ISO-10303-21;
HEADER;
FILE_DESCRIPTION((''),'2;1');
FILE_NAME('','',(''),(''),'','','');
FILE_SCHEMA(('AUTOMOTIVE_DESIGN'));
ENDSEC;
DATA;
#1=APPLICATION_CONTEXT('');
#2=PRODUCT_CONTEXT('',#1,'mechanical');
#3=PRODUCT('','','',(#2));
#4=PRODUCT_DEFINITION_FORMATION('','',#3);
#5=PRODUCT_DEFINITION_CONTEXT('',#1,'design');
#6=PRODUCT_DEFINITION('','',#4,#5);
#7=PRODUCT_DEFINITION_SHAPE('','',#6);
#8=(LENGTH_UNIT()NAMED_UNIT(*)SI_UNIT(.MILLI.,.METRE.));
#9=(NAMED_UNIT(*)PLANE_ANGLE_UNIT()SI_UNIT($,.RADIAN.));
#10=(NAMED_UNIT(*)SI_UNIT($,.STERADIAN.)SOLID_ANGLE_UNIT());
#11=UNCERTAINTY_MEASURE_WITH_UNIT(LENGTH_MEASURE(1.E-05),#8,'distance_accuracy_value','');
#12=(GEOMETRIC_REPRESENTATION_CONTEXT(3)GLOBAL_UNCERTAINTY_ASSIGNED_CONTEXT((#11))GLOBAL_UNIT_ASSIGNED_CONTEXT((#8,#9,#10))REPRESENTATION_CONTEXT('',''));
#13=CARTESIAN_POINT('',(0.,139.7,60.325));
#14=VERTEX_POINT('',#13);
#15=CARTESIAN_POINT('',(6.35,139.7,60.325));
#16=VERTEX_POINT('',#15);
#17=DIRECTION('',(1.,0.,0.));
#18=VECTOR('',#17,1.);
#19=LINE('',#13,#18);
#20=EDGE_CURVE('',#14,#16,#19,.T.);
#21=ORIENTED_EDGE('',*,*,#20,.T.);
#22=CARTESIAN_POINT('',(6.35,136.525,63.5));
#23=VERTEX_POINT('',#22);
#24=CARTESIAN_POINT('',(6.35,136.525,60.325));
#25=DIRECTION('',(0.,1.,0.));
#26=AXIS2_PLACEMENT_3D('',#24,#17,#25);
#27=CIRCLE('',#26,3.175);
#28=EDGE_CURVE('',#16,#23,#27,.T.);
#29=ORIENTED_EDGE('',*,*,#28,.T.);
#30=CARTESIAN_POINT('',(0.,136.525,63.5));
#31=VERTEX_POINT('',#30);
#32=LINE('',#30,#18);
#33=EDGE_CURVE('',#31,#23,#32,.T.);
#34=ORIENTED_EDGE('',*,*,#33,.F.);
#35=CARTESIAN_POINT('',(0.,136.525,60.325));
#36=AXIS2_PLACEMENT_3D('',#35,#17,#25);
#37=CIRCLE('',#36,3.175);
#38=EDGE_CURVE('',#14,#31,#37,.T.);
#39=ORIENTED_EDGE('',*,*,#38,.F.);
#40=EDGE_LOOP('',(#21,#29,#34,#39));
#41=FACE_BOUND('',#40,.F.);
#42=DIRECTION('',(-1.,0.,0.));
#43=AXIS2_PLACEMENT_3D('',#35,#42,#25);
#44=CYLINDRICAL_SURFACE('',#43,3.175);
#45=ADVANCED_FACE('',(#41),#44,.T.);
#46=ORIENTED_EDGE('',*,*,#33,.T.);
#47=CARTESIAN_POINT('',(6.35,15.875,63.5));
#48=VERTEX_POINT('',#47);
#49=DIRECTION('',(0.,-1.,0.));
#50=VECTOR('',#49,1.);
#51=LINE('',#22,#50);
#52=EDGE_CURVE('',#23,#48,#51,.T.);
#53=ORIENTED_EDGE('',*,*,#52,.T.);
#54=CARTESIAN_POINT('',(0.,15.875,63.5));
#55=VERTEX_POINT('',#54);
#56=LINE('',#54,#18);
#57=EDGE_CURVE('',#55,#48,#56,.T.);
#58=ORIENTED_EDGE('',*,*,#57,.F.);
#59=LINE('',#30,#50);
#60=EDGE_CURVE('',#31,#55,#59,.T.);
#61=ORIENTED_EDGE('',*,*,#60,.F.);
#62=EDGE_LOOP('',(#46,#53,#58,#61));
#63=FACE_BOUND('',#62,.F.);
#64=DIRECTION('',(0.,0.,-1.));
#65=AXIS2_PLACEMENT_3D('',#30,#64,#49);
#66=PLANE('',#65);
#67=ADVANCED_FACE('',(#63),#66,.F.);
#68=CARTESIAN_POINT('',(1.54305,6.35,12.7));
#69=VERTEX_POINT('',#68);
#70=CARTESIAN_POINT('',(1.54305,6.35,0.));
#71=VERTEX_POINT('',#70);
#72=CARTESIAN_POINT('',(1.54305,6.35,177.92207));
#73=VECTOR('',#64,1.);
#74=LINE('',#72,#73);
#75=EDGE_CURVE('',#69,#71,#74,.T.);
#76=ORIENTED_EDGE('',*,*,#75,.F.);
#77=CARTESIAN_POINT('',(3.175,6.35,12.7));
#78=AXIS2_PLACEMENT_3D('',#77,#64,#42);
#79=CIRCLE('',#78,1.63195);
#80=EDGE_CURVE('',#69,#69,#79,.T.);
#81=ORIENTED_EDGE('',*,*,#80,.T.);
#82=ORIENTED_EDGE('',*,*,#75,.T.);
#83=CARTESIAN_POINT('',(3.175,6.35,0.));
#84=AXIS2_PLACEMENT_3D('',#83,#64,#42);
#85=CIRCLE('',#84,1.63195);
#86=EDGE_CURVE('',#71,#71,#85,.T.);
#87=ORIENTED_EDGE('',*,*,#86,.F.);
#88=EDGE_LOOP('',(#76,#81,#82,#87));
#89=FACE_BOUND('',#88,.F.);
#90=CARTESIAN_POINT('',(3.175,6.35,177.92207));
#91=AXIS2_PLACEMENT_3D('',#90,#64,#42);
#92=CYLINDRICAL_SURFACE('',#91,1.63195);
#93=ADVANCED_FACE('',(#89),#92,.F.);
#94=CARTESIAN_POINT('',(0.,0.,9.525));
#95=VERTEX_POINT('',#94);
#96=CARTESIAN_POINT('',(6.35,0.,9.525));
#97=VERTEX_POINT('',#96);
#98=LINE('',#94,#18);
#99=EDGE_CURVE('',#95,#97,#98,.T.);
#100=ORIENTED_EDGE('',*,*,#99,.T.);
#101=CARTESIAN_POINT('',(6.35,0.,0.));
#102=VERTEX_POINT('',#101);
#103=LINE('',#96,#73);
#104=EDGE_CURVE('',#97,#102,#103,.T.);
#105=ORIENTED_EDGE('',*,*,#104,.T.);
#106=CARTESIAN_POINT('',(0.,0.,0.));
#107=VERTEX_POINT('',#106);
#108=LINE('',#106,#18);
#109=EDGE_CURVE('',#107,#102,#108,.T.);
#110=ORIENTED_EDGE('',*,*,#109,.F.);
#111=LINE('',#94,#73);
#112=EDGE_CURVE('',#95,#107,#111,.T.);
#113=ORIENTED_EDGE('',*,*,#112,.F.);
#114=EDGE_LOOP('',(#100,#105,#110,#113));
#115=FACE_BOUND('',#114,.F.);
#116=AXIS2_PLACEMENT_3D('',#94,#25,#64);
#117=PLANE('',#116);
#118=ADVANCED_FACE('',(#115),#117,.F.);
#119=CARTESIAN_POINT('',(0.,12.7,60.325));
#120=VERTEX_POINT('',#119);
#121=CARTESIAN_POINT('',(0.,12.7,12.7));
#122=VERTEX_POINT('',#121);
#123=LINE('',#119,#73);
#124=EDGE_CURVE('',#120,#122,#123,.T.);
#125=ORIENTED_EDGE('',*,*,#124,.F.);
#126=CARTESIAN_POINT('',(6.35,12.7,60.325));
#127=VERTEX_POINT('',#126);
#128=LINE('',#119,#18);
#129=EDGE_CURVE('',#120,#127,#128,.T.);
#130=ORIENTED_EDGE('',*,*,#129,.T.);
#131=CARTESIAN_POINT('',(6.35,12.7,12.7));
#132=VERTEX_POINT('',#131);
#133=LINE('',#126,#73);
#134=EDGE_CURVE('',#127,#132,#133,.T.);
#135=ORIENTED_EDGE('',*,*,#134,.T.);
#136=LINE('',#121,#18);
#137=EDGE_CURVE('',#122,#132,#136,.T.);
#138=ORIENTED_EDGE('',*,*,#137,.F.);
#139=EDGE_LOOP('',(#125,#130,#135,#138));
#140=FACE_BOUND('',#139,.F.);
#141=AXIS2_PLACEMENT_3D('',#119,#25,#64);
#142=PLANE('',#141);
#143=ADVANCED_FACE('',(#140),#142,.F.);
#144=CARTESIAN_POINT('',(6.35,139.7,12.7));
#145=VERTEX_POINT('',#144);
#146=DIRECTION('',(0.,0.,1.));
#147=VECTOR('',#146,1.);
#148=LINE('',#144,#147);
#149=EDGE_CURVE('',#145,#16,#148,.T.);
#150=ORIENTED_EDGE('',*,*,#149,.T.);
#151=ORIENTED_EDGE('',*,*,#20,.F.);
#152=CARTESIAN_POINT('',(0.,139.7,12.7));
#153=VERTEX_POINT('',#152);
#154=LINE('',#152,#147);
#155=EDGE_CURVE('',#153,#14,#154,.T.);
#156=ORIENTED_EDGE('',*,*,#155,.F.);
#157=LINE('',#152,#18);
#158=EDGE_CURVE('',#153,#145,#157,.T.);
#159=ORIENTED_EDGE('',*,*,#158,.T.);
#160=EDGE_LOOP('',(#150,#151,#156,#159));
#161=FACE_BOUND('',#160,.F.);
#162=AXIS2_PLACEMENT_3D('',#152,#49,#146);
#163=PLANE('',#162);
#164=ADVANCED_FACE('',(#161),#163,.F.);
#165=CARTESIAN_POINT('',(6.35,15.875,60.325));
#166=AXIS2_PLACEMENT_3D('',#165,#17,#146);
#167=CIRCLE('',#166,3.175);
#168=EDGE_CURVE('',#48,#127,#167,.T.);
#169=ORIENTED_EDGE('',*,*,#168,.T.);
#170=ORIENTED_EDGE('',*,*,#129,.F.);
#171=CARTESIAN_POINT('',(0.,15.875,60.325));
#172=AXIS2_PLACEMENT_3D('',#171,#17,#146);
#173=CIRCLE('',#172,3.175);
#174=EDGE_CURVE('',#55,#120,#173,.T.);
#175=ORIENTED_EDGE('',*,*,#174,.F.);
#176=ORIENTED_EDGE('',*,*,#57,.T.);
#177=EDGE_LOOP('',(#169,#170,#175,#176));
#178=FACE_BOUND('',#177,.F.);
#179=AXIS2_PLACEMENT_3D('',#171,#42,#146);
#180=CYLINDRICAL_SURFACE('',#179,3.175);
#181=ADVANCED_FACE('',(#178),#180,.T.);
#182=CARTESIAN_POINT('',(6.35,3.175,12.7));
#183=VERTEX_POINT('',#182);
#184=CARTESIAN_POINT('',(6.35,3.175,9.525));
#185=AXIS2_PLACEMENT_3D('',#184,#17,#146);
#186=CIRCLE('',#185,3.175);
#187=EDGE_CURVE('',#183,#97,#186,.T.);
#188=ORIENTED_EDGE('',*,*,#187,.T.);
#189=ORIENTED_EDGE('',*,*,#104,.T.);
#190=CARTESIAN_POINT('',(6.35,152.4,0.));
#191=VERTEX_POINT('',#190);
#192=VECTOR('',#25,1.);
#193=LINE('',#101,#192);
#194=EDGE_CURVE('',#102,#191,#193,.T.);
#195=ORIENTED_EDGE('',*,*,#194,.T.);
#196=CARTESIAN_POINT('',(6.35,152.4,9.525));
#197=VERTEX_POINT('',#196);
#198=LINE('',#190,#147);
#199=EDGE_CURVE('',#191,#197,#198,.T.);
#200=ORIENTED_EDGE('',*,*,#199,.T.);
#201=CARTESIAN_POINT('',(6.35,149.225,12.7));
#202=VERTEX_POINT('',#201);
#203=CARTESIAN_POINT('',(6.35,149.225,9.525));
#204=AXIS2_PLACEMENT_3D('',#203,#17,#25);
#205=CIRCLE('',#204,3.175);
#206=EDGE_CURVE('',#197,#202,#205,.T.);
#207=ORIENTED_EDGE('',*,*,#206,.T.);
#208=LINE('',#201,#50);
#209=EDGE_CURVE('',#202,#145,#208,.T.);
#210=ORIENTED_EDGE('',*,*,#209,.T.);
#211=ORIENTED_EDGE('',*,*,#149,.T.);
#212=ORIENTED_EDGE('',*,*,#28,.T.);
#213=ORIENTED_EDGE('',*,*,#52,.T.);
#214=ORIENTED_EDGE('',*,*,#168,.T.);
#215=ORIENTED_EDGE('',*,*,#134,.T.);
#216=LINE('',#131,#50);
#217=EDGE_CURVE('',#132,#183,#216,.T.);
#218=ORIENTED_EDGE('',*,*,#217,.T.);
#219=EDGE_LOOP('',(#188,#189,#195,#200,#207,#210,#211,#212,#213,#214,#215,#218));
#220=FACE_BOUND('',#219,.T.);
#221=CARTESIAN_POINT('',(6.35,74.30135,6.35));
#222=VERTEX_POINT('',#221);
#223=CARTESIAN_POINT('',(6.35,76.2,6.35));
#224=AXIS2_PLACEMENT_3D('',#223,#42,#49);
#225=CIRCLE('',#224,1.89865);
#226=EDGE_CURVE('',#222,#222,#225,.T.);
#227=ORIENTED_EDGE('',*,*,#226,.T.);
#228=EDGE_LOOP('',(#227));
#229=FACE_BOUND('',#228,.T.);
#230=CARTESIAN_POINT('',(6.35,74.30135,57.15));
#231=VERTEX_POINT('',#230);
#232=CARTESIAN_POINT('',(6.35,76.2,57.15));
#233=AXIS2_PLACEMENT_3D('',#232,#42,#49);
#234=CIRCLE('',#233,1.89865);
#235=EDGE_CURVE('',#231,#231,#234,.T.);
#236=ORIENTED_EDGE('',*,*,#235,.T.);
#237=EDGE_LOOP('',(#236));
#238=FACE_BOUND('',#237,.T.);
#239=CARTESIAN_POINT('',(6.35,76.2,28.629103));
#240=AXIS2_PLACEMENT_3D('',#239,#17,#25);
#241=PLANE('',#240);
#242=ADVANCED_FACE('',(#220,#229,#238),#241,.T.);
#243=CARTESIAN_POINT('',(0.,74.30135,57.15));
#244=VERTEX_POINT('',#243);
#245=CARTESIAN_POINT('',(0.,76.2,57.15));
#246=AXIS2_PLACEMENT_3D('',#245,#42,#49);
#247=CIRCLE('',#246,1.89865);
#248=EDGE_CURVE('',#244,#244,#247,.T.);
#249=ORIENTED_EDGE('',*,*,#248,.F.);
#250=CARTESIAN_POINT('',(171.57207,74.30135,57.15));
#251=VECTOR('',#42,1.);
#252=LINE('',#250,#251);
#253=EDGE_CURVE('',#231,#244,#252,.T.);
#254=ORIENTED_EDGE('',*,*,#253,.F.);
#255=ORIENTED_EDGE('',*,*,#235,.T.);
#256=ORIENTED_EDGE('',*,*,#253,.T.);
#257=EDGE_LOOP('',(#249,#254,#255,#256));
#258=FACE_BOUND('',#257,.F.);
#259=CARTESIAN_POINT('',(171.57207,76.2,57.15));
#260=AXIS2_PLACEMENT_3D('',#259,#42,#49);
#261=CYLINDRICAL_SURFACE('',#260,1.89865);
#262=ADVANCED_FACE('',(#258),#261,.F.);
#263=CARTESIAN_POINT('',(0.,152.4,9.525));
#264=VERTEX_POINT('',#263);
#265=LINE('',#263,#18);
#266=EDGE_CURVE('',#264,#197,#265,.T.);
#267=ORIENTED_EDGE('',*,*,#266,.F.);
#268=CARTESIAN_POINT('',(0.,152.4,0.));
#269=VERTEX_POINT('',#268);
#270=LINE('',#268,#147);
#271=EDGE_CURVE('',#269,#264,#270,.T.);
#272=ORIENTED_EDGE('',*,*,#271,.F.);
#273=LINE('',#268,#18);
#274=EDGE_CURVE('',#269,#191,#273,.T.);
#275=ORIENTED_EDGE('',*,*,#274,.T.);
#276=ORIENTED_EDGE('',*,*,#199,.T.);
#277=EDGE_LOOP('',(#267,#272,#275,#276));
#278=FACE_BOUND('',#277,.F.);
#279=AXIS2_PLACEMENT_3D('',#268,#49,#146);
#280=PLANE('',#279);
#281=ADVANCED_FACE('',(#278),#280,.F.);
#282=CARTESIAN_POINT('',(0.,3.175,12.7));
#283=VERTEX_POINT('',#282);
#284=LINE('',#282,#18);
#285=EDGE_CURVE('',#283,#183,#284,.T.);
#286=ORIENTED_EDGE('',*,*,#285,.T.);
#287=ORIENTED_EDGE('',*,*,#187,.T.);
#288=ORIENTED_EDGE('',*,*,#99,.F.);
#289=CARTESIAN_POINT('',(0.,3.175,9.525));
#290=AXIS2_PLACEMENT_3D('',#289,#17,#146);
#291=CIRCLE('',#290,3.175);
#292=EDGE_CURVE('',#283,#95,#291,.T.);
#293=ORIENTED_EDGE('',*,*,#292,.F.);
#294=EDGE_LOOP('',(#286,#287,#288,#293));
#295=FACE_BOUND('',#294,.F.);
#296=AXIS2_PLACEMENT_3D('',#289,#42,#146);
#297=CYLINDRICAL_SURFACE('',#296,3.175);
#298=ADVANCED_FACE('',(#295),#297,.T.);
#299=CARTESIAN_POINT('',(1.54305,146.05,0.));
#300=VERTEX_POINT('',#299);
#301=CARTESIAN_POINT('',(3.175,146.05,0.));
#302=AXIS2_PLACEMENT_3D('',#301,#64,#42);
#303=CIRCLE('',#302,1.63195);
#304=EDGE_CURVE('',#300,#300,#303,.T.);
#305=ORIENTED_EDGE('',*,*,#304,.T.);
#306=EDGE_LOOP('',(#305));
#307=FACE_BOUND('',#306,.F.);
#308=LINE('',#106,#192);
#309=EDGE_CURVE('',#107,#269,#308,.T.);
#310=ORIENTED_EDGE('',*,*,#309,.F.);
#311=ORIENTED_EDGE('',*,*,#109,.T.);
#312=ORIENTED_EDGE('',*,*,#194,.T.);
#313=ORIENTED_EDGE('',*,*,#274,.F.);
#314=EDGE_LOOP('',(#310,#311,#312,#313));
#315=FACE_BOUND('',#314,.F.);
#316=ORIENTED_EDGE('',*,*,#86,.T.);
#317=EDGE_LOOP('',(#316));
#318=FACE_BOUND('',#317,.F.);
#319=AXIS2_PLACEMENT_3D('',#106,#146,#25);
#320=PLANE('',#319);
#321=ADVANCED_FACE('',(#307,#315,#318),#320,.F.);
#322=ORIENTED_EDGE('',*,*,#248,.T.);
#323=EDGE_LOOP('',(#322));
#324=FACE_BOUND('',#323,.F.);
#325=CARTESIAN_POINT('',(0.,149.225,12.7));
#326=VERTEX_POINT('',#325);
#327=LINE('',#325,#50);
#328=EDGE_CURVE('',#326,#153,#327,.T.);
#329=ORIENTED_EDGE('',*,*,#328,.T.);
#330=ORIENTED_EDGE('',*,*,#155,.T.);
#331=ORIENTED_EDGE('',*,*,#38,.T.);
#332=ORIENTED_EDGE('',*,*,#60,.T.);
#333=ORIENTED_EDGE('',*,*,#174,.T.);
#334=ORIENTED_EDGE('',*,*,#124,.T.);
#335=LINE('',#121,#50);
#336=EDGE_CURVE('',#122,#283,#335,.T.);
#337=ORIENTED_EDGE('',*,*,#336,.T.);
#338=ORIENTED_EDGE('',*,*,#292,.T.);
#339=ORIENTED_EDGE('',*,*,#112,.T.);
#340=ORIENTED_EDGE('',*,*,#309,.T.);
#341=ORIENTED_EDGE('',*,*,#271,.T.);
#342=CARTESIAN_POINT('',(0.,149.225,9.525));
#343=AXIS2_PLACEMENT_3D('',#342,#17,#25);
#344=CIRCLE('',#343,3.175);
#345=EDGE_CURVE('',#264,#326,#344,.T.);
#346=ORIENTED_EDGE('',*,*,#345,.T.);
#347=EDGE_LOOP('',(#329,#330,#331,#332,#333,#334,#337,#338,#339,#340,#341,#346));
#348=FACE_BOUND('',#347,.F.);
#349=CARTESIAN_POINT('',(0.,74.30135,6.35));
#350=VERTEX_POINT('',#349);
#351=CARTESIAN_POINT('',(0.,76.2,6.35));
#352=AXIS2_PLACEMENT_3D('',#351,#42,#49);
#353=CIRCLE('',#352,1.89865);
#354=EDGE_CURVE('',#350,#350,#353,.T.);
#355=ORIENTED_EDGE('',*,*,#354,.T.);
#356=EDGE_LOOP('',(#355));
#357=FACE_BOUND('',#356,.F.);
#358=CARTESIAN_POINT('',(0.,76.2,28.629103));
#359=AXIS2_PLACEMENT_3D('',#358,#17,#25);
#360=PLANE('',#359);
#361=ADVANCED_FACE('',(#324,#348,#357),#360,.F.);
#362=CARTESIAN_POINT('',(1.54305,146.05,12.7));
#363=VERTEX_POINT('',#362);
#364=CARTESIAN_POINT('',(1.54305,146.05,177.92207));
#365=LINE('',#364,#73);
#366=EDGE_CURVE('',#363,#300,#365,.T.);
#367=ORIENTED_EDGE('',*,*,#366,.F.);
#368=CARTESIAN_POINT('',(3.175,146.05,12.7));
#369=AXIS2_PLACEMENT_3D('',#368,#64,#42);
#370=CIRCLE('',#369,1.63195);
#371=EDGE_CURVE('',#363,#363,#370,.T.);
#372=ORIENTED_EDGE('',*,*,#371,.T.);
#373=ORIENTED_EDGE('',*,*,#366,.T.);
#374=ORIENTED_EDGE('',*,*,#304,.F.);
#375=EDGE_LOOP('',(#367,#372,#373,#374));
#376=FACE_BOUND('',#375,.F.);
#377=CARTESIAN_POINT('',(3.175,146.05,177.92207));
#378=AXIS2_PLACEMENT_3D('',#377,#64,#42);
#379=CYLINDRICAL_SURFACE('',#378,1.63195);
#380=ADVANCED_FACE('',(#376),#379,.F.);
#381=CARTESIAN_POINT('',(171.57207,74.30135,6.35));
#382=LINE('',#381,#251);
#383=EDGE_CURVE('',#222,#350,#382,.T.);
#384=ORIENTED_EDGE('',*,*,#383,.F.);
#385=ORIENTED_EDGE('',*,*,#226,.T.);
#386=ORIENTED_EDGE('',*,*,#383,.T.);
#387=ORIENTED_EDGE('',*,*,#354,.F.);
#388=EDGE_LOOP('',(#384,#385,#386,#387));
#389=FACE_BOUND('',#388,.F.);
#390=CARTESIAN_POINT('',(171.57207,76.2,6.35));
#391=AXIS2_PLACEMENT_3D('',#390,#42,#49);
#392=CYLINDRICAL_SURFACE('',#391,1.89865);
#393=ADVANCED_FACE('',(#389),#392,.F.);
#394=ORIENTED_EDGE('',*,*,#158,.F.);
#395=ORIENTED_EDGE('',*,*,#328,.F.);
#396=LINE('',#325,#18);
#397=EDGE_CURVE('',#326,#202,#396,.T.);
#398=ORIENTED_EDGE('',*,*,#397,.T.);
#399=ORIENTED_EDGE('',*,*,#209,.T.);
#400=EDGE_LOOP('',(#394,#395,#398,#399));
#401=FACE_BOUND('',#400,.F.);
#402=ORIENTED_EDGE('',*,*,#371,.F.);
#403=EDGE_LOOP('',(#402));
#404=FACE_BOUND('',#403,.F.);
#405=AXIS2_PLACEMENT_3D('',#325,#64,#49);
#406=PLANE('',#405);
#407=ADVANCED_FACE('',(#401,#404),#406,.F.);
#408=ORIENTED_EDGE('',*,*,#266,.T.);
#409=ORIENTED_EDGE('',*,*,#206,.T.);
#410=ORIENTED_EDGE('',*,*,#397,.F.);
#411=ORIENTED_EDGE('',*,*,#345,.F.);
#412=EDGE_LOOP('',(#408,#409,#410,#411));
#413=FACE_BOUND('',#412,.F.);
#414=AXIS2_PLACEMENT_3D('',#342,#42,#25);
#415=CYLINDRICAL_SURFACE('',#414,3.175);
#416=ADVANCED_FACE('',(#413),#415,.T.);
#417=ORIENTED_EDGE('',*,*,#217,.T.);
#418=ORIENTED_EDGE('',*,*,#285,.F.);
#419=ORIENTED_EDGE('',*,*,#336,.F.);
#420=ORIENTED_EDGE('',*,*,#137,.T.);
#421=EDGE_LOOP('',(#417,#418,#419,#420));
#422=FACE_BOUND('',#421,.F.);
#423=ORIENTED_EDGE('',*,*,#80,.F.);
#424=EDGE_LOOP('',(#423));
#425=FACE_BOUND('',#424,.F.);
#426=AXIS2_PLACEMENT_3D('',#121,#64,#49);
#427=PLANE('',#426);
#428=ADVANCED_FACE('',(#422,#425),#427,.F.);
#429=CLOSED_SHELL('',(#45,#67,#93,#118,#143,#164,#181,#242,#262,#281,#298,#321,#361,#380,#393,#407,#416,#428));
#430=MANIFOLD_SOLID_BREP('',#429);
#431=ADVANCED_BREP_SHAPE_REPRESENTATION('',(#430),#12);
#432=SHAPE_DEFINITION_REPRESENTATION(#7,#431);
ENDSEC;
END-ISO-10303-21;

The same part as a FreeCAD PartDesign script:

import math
import FreeCAD as App
import Part
import Sketcher

V = App.Vector
Q = App.Units.Quantity

doc = App.newDocument("Part")
params = doc.addObject("Spreadsheet::Sheet", "Params")
for row, (alias, value) in enumerate([
    ("sketch1_width", "6 in"),
    ("sketch1_radius", "0.125 in"),
    ("sketch1_width2", "4.75 in"),
    ("pad1_length", "0.25 in"),
    ("hole_diameter", "0.1495 in"),
    ("hole2_diameter", "0.1285 in"),
], start=1):
    params.set(f"A{row}", alias)
    params.set(f"B{row}", "=" + value)
    params.setAlias(f"B{row}", alias)

body = doc.addObject("PartDesign::Body", "Body")

sketch1 = body.newObject("Sketcher::SketchObject", "Sketch")
sketch1.AttachmentSupport = (doc.getObject("YZ_Plane"), [""])
sketch1.MapMode = "FlatFace"
sketch1.addGeometry([
    Part.LineSegment(V(0, 9.5, 0), V(0, 0, 0)),
    Part.LineSegment(V(0, 0, 0), V(152.4, 0, 0)),
    Part.LineSegment(V(152.4, 0, 0), V(152.4, 9.5, 0)),
    Part.ArcOfCircle(Part.Circle(V(149.2, 9.5, 0), V(0, 0, 1), 3.2), math.radians(0), math.radians(90)),
    Part.LineSegment(V(149.2, 12.7, 0), V(139.7, 12.7, 0)),
    Part.LineSegment(V(139.7, 12.7, 0), V(139.7, 60.3, 0)),
    Part.ArcOfCircle(Part.Circle(V(136.5, 60.3, 0), V(0, 0, 1), 3.2), math.radians(0), math.radians(90)),
    Part.LineSegment(V(136.5, 63.5, 0), V(15.9, 63.5, 0)),
    Part.ArcOfCircle(Part.Circle(V(15.9, 60.3, 0), V(0, 0, 1), 3.2), math.radians(90), math.radians(180)),
    Part.LineSegment(V(12.7, 60.3, 0), V(12.7, 12.7, 0)),
    Part.LineSegment(V(12.7, 12.7, 0), V(3.2, 12.7, 0)),
    Part.ArcOfCircle(Part.Circle(V(3.2, 9.5, 0), V(0, 0, 1), 3.2), math.radians(90), math.radians(180)),
], False)
sketch1.addConstraint([
    Sketcher.Constraint("Coincident", 0, 2, 1, 1),
    Sketcher.Constraint("Coincident", 1, 2, 2, 1),
    Sketcher.Constraint("Tangent", 2, 2, 3, 1),
    Sketcher.Constraint("Tangent", 3, 2, 4, 1),
    Sketcher.Constraint("Coincident", 4, 2, 5, 1),
    Sketcher.Constraint("Tangent", 5, 2, 6, 1),
    Sketcher.Constraint("Tangent", 6, 2, 7, 1),
    Sketcher.Constraint("Tangent", 7, 2, 8, 1),
    Sketcher.Constraint("Tangent", 8, 2, 9, 1),
    Sketcher.Constraint("Coincident", 9, 2, 10, 1),
    Sketcher.Constraint("Tangent", 10, 2, 11, 1),
    Sketcher.Constraint("Tangent", 11, 2, 0, 1),
    Sketcher.Constraint("Vertical", 0),
    Sketcher.Constraint("Horizontal", 1),
    Sketcher.Constraint("Vertical", 2),
    Sketcher.Constraint("Horizontal", 4),
    Sketcher.Constraint("Vertical", 5),
    Sketcher.Constraint("Horizontal", 7),
    Sketcher.Constraint("Vertical", 9),
    Sketcher.Constraint("Horizontal", 10),
    Sketcher.Constraint("Coincident", 0, 2, -1, 1),
    Sketcher.Constraint("Equal", 3, 6),
    Sketcher.Constraint("Equal", 6, 8),
    Sketcher.Constraint("Equal", 8, 11),
    Sketcher.Constraint("Horizontal", 3, 3, 11, 3),
    Sketcher.Constraint("Equal", 4, 10),
    Sketcher.Constraint("Equal", 10, 0),
    Sketcher.Constraint("DistanceX", 1, 1, 1, 2, Q("6 in")),
    Sketcher.Constraint("Radius", 3, Q("0.125 in")),
    Sketcher.Constraint("DistanceY", 3, 3, 6, 3, Q("2 in")),
    Sketcher.Constraint("DistanceX", 7, 2, 7, 1, Q("4.75 in")),
])
sketch1.setExpression("Constraints[27]", "Params.sketch1_width")
sketch1.setExpression("Constraints[28]", "Params.sketch1_radius")
sketch1.setExpression("Constraints[30]", "Params.sketch1_width2")
pad1 = body.newObject("PartDesign::Pad", "Pad")
pad1.Profile = sketch1
pad1.setExpression("Length", "Params.pad1_length")

sketch2 = body.newObject("Sketcher::SketchObject", "Sketch001")
sketch2.AttachmentSupport = (doc.getObject("YZ_Plane"), [""])
sketch2.MapMode = "FlatFace"
sketch2.AttachmentOffset = App.Placement(V(0, 0, 0.25 * 25.4), App.Rotation())
sketch2.addGeometry([
    Part.Circle(V(76.2, 57.1, 0), V(0, 0, 1), 1.9),
    Part.Circle(V(76.2, 6.3, 0), V(0, 0, 1), 1.9),
], False)
sketch2.addConstraint([
    Sketcher.Constraint("Equal", 0, 1),
    Sketcher.Constraint("Vertical", 0, 3, 1, 3),
    Sketcher.Constraint("DistanceX", -1, 1, 0, 3, Q("3 in")),
    Sketcher.Constraint("DistanceY", 1, 3, 0, 3, Q("2 in")),
    Sketcher.Constraint("Diameter", 0, Q("0.1495 in")),
    Sketcher.Constraint("DistanceY", -1, 1, 0, 3, Q("2.25 in")),
])
doc.recompute()
hole = body.newObject("PartDesign::Hole", "Hole")
hole.Profile = sketch2
hole.ThreadType = "None"
hole.setExpression("Diameter", "Params.hole_diameter")
hole.DepthType = "ThroughAll"

sketch3 = body.newObject("Sketcher::SketchObject", "Sketch002")
sketch3.AttachmentSupport = (doc.getObject("XY_Plane"), [""])
sketch3.MapMode = "FlatFace"
sketch3.AttachmentOffset = App.Placement(V(0, 0, 0.5 * 25.4), App.Rotation())
sketch3.addGeometry([
    Part.Circle(V(3.2, 6.3, 0), V(0, 0, 1), 1.6),
    Part.Circle(V(3.2, 146.1, 0), V(0, 0, 1), 1.6),
], False)
sketch3.addConstraint([
    Sketcher.Constraint("Equal", 0, 1),
    Sketcher.Constraint("Vertical", 0, 3, 1, 3),
    Sketcher.Constraint("Diameter", 0, Q("0.1285 in")),
    Sketcher.Constraint("DistanceY", 0, 3, 1, 3, Q("5.5 in")),
    Sketcher.Constraint("DistanceY", -1, 1, 0, 3, Q("0.25 in")),
    Sketcher.Constraint("DistanceX", -1, 1, 0, 3, Q("0.125 in")),
])
doc.recompute()
hole2 = body.newObject("PartDesign::Hole", "Hole001")
hole2.Profile = sketch3
hole2.ThreadType = "None"
hole2.setExpression("Diameter", "Params.hole2_diameter")
hole2.DepthType = "ThroughAll"

doc.recompute()
